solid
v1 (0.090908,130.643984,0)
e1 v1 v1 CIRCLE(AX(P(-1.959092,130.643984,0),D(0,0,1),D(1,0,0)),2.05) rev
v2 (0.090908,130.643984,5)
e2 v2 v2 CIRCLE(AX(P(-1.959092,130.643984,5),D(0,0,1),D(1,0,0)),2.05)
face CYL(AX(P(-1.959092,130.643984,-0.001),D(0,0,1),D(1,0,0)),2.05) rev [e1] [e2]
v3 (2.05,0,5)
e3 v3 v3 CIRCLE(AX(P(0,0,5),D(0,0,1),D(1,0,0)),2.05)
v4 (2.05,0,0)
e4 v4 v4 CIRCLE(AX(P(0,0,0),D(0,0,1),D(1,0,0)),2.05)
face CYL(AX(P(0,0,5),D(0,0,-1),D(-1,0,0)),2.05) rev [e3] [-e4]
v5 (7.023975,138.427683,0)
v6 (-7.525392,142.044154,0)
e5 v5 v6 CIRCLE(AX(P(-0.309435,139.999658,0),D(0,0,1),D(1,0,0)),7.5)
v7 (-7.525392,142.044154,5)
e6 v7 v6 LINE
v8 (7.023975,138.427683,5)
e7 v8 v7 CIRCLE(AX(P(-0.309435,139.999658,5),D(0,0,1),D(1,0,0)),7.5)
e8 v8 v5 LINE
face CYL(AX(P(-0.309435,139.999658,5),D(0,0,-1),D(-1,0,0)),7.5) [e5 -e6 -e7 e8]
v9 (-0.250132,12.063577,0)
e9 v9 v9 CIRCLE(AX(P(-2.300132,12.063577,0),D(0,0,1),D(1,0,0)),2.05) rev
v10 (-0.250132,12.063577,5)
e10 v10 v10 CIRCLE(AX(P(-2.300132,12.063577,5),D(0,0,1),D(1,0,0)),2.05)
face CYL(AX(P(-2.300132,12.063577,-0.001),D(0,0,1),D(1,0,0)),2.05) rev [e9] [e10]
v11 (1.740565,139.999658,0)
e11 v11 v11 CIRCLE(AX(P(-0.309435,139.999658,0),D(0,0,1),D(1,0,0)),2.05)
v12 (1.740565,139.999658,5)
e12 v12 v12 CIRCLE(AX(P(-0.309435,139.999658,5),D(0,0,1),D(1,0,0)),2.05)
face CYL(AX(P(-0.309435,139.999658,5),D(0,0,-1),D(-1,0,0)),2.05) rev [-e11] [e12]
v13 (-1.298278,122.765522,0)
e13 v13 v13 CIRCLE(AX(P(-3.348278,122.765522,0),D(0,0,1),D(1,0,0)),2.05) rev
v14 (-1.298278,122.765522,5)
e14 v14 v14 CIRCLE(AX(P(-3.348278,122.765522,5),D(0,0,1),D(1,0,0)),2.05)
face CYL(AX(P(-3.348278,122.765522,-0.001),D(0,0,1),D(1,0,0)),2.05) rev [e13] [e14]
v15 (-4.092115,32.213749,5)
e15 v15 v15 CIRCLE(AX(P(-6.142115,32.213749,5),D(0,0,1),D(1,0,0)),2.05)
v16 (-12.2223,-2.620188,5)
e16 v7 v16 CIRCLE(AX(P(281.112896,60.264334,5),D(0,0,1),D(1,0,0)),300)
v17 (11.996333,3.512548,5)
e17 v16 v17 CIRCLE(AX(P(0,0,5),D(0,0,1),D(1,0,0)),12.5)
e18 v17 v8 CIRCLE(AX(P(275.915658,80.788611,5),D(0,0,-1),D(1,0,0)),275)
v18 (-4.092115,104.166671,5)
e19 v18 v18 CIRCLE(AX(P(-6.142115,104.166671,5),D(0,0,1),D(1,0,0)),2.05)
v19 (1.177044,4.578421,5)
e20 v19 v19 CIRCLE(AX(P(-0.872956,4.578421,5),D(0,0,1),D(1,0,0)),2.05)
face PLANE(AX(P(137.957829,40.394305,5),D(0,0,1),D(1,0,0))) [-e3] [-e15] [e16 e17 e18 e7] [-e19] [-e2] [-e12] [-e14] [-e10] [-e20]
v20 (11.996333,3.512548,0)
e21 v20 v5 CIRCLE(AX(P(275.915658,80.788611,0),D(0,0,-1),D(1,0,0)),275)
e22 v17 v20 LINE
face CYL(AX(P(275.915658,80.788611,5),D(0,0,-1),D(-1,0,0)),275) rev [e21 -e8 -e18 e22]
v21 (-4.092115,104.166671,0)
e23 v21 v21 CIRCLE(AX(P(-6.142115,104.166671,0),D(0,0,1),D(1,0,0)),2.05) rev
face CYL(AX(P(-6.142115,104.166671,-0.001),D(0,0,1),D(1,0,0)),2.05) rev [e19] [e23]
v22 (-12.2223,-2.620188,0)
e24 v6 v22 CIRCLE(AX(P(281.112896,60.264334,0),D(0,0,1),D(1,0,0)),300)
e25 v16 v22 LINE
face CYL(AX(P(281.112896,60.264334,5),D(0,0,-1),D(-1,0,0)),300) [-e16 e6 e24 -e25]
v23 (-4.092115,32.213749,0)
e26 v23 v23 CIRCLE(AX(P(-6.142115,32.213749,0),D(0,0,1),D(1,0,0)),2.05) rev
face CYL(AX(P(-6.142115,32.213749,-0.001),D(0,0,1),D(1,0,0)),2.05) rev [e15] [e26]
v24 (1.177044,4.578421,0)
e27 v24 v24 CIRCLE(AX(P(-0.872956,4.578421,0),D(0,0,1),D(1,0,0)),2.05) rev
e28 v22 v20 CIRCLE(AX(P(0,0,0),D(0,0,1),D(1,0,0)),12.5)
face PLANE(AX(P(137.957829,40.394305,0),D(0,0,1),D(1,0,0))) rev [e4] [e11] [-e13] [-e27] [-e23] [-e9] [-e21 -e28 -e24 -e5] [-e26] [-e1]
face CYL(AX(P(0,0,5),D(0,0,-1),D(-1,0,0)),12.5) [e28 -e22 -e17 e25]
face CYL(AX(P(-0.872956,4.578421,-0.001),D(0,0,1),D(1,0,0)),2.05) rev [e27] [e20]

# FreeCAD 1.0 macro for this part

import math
import FreeCAD as App
import Part
import Sketcher

doc = App.newDocument("Part")
body = doc.addObject("PartDesign::Body", "Body")

sketch1 = body.newObject("Sketcher::SketchObject", "Sketch")
sketch1.AttachmentSupport = (doc.getObject("XY_Plane"), [""])
sketch1.MapMode = "FlatFace"
sketch1.addGeometry(Part.ArcOfCircle(Part.Circle(App.Vector(-0.3, 140, 0), App.Vector(0, 0, 1), 7.5), math.radians(-12), math.radians(164)), False)
sketch1.addGeometry(Part.ArcOfCircle(Part.Circle(App.Vector(281.1, 60.3, 0), App.Vector(0, 0, 1), 300), math.radians(164), math.radians(192)), False)
sketch1.addGeometry(Part.ArcOfCircle(Part.Circle(App.Vector(0, 0, 0), App.Vector(0, 0, 1), 12.5), math.radians(-168), math.radians(16)), False)
sketch1.addGeometry(Part.ArcOfCircle(Part.Circle(App.Vector(275.9, 80.8, 0), App.Vector(0, 0, 1), 275), math.radians(168), math.radians(196)), False)
sketch1.addGeometry(Part.Circle(App.Vector(0, 0, 0), App.Vector(0, 0, 1), 2), False)
sketch1.addGeometry(Part.Circle(App.Vector(-0.3, 140, 0), App.Vector(0, 0, 1), 2), False)
sketch1.addConstraint(Sketcher.Constraint("Tangent", 0, 2, 1, 1))
sketch1.addConstraint(Sketcher.Constraint("Tangent", 1, 2, 2, 1))
sketch1.addConstraint(Sketcher.Constraint("Tangent", 2, 2, 3, 2))
sketch1.addConstraint(Sketcher.Constraint("Tangent", 3, 1, 0, 1))
sketch1.addConstraint(Sketcher.Constraint("Coincident", 2, 3, -1, 1))
sketch1.addConstraint(Sketcher.Constraint("Coincident", 4, 3, -1, 1))
sketch1.addConstraint(Sketcher.Constraint("Coincident", 5, 3, 0, 3))
sketch1.addConstraint(Sketcher.Constraint("Equal", 4, 5))
sketch1.addConstraint(Sketcher.Constraint("Radius", 1, 300.0))
sketch1.addConstraint(Sketcher.Constraint("Radius", 3, 275.0))
sketch1.addConstraint(Sketcher.Constraint("Diameter", 4, 4.1))
sketch1.addConstraint(Sketcher.Constraint("Radius", 0, 7.5))
sketch1.addConstraint(Sketcher.Constraint("Radius", 2, 12.5))
sketch1.addConstraint(Sketcher.Constraint("DistanceY", -1, 1, 0, 3, 139.999658))
sketch1.addConstraint(Sketcher.Constraint("DistanceX", -1, 1, 3, 3, 275.915658))
pad1 = body.newObject("PartDesign::Pad", "Pad")
pad1.Profile = sketch1
pad1.Length = 5

sketch2 = body.newObject("Sketcher::SketchObject", "Sketch001")
sketch2.AttachmentSupport = (doc.getObject("XY_Plane"), [""])
sketch2.MapMode = "FlatFace"
sketch2.AttachmentOffset = App.Placement(App.Vector(0, 0, 5), App.Rotation())
sketch2.addGeometry(Part.Circle(App.Vector(-6.1, 104.2, 0), App.Vector(0, 0, 1), 2), False)
sketch2.addConstraint(Sketcher.Constraint("Diameter", 0, 4.1))
sketch2.addConstraint(Sketcher.Constraint("DistanceY", -1, 1, 0, 3, 104.166671))
sketch2.addConstraint(Sketcher.Constraint("DistanceX", 0, 3, -1, 1, 6.142115))
pocket1 = body.newObject("PartDesign::Pocket", "Pocket")
pocket1.Profile = sketch2
pocket1.Type = "UpToFirst"

sketch3 = body.newObject("Sketcher::SketchObject", "Sketch002")
sketch3.AttachmentSupport = (doc.getObject("XY_Plane"), [""])
sketch3.MapMode = "FlatFace"
sketch3.AttachmentOffset = App.Placement(App.Vector(0, 0, 5), App.Rotation())
sketch3.addGeometry(Part.Circle(App.Vector(-6.1, 32.2, 0), App.Vector(0, 0, 1), 2), False)
sketch3.addConstraint(Sketcher.Constraint("Diameter", 0, 4.1))
sketch3.addConstraint(Sketcher.Constraint("DistanceY", -1, 1, 0, 3, 32.213749))
sketch3.addConstraint(Sketcher.Constraint("DistanceX", 0, 3, -1, 1, 6.142115))
pocket2 = body.newObject("PartDesign::Pocket", "Pocket001")
pocket2.Profile = sketch3
pocket2.Type = "UpToFirst"

sketch4 = body.newObject("Sketcher::SketchObject", "Sketch003")
sketch4.AttachmentSupport = (doc.getObject("XY_Plane"), [""])
sketch4.MapMode = "FlatFace"
sketch4.AttachmentOffset = App.Placement(App.Vector(0, 0, 5), App.Rotation())
sketch4.addGeometry(Part.Circle(App.Vector(-0.3, 140, 0), App.Vector(0, 0, 1), 2), False)
sketch4.addGeometry(Part.Circle(App.Vector(-2, 130.6, 0), App.Vector(0, 0, 1), 2), False)
sketch4.addGeometry(Part.Circle(App.Vector(-3.3, 122.8, 0), App.Vector(0, 0, 1), 2), False)
sketch4.addConstraint(Sketcher.Constraint("Equal", 0, 1))
sketch4.addConstraint(Sketcher.Constraint("Equal", 1, 2))
sketch4.addConstraint(Sketcher.Constraint("Diameter", 0, 4.1))
sketch4.addConstraint(Sketcher.Constraint("DistanceY", -1, 1, 0, 3, 139.999658))
sketch4.addConstraint(Sketcher.Constraint("DistanceX", 0, 3, -1, 1, 0.309435))
sketch4.addConstraint(Sketcher.Constraint("DistanceX", 1, 3, -1, 1, 1.959092))
sketch4.addConstraint(Sketcher.Constraint("DistanceY", -1, 1, 1, 3, 130.643984))
sketch4.addConstraint(Sketcher.Constraint("DistanceX", 2, 3, -1, 1, 3.348278))
sketch4.addConstraint(Sketcher.Constraint("DistanceY", -1, 1, 2, 3, 122.765522))
pocket3 = body.newObject("PartDesign::Pocket", "Pocket002")
pocket3.Profile = sketch4
pocket3.Length = 5

sketch5 = body.newObject("Sketcher::SketchObject", "Sketch004")
sketch5.AttachmentSupport = (doc.getObject("XY_Plane"), [""])
sketch5.MapMode = "FlatFace"
sketch5.AttachmentOffset = App.Placement(App.Vector(0, 0, 5), App.Rotation())
sketch5.addGeometry(Part.Circle(App.Vector(-0.9, 4.6, 0), App.Vector(0, 0, 1), 2), False)
sketch5.addConstraint(Sketcher.Constraint("Diameter", 0, 4.1))
sketch5.addConstraint(Sketcher.Constraint("DistanceY", -1, 1, 0, 3, 4.578421))
sketch5.addConstraint(Sketcher.Constraint("DistanceX", 0, 3, -1, 1, 0.872956))
pocket4 = body.newObject("PartDesign::Pocket", "Pocket003")
pocket4.Profile = sketch5
pocket4.Type = "UpToFirst"

sketch6 = body.newObject("Sketcher::SketchObject", "Sketch005")
sketch6.AttachmentSupport = (doc.getObject("XY_Plane"), [""])
sketch6.MapMode = "FlatFace"
sketch6.AttachmentOffset = App.Placement(App.Vector(0, 0, 5), App.Rotation())
sketch6.addGeometry(Part.Circle(App.Vector(-2.3, 12.1, 0), App.Vector(0, 0, 1), 2), False)
sketch6.addConstraint(Sketcher.Constraint("Diameter", 0, 4.1))
sketch6.addConstraint(Sketcher.Constraint("DistanceX", 0, 3, -1, 1, 2.300132))
sketch6.addConstraint(Sketcher.Constraint("DistanceY", -1, 1, 0, 3, 12.063577))
pocket5 = body.newObject("PartDesign::Pocket", "Pocket004")
pocket5.Profile = sketch6
pocket5.Type = "UpToFirst"

doc.recompute()
